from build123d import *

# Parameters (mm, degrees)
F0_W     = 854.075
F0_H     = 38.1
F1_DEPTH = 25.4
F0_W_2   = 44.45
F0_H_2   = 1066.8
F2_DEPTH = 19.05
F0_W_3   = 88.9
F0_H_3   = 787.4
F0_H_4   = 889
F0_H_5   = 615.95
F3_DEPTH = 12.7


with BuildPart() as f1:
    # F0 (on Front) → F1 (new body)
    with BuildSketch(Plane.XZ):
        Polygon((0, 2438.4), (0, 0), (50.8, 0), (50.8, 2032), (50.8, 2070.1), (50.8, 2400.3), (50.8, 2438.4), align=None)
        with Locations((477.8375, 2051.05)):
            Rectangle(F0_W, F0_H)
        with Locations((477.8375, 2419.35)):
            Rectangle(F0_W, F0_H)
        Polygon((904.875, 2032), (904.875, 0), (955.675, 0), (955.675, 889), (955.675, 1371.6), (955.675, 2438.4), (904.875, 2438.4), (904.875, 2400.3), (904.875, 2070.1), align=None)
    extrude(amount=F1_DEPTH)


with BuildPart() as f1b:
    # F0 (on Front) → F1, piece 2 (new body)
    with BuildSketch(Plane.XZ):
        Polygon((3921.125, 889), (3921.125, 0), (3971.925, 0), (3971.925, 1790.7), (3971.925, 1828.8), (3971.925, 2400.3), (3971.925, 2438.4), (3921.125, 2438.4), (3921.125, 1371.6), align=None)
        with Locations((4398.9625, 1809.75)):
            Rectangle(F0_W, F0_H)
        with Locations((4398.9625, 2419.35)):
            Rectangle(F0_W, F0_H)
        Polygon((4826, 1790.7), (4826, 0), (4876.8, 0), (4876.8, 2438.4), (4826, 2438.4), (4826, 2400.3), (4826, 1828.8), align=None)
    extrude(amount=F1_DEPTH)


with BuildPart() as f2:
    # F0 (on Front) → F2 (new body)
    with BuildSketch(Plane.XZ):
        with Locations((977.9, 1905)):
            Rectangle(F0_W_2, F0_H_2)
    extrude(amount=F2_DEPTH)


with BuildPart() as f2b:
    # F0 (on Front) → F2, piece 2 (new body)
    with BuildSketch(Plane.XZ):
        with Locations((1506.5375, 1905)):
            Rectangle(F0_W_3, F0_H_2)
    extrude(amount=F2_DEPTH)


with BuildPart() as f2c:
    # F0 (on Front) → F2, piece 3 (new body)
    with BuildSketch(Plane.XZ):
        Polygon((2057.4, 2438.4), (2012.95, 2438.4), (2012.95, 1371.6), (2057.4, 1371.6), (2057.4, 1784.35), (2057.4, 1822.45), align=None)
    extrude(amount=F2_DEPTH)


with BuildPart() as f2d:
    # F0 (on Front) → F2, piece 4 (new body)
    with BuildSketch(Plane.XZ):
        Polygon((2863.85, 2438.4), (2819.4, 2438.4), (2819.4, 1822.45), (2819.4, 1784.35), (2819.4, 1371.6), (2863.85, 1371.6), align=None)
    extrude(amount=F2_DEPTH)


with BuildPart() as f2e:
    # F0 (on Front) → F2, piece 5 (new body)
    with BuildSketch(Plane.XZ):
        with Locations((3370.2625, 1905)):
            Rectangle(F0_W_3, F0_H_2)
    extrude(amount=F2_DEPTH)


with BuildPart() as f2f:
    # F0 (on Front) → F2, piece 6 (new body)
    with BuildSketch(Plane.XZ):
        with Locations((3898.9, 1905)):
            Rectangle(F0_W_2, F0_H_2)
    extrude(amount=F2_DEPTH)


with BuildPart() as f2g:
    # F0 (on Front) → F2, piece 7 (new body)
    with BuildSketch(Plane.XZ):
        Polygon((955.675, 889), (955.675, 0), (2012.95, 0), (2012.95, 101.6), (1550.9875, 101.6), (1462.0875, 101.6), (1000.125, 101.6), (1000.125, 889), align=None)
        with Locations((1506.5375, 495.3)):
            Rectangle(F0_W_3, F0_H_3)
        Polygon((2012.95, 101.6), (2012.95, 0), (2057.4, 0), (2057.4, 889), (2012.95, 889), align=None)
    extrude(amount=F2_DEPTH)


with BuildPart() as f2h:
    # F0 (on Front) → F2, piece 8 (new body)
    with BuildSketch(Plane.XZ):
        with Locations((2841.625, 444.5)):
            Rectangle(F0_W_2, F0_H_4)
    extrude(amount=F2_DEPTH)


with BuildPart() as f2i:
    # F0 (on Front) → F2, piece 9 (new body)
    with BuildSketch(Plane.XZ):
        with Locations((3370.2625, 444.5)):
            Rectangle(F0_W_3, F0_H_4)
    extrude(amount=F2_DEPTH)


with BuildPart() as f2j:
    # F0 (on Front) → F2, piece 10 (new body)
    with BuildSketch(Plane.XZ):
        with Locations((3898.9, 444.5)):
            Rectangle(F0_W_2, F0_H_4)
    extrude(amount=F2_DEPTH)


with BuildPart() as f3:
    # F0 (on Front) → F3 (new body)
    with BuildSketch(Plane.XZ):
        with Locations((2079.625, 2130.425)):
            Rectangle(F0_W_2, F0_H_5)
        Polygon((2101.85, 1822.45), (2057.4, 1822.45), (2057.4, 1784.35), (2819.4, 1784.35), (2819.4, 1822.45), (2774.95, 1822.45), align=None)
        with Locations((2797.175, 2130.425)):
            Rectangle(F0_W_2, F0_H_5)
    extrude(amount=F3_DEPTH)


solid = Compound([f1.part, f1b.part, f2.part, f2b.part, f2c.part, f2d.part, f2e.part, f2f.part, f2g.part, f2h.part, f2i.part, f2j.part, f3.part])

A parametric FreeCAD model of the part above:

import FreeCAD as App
import Part
import Sketcher
from FreeCAD import Vector
Q = App.Units.Quantity


def add_polygon(sketch, points):
    """Adds a closed chain of lines whose ends are joined by coincident constraints."""
    first, n = sketch.GeometryCount, len(points)
    for a, b in zip(points, points[1:] + points[:1]):
        sketch.addGeometry(Part.LineSegment(App.Vector(*a, 0), App.Vector(*b, 0)), False)
    for i in range(n):
        sketch.addConstraint(Sketcher.Constraint("Coincident", first + i, 2, first + (i + 1) % n, 1))

doc = App.newDocument("Part")
params = doc.addObject("Spreadsheet::Sheet", "Params")
for row, (alias, value) in enumerate([
    ("sketch1_width", "2 in"),
    ("sketch1_height", "96 in"),
    ("sketch1_height2", "80 in"),
    ("sketch1_height3", "13 in"),
    ("sketch1_width2", "33.625 in"),
    ("pad1_length", "1 in"),
    ("sketch2_width", "2 in"),
    ("sketch2_height", "96 in"),
    ("sketch2_height2", "70.5 in"),
    ("sketch2_height3", "22.5 in"),
    ("sketch2_width2", "33.625 in"),
    ("pad2_length", "1 in"),
    ("sketch3_height", "42 in"),
    ("sketch3_width", "1.75 in"),
    ("pad3_length", "0.75 in"),
    ("sketch4_height", "42 in"),
    ("sketch4_width", "3.5 in"),
    ("pad4_length", "0.75 in"),
    ("sketch5_height", "42 in"),
    ("sketch5_width", "1.75 in"),
    ("pad5_length", "0.75 in"),
    ("sketch6_height", "42 in"),
    ("sketch6_width", "1.75 in"),
    ("pad6_length", "0.75 in"),
    ("sketch7_height", "42 in"),
    ("sketch7_width", "3.5 in"),
    ("pad7_length", "0.75 in"),
    ("sketch8_height", "42 in"),
    ("sketch8_width", "1.75 in"),
    ("pad8_length", "0.75 in"),
    ("sketch9_height", "35 in"),
    ("sketch9_height2", "31 in"),
    ("sketch9_width", "3.5 in"),
    ("sketch9_width2", "1.75 in"),
    ("sketch9_width3", "43.375 in"),
    ("pad9_length", "0.75 in"),
    ("sketch10_height", "35 in"),
    ("sketch10_width", "1.75 in"),
    ("pad10_length", "0.75 in"),
    ("sketch11_height", "35 in"),
    ("sketch11_width", "3.5 in"),
    ("pad11_length", "0.75 in"),
    ("sketch12_height", "35 in"),
    ("sketch12_width", "1.75 in"),
    ("pad12_length", "0.75 in"),
    ("sketch13_width", "30 in"),
    ("sketch13_width2", "26.5 in"),
    ("sketch13_height", "25.75 in"),
    ("sketch13_height2", "24.25 in"),
    ("pad13_length", "0.5 in"),
], start=1):
    params.set(f"A{row}", alias)
    params.set(f"B{row}", "=" + value)
    params.setAlias(f"B{row}", alias)

body = doc.addObject("PartDesign::Body", "Body")

# Sketch on XZ plane
sketch1 = doc.addObject("Sketcher::SketchObject", "Sketch")
body.addObject(sketch1)
sketch1.AttachmentSupport = (doc.XZ_Plane, [""])
sketch1.MapMode = "FlatFace"
add_polygon(sketch1, [(0, 2438), (0, 0), (51, 0), (51, 2032), (905, 2032), (905, 0), (956, 0), (956, 2438)])  # lines 0-7
add_polygon(sketch1, [(905, 2070), (51, 2070), (51, 2400), (905, 2400)])  # lines 8-11
sketch1.addConstraint([
    Sketcher.Constraint("Vertical", 0),
    Sketcher.Constraint("Horizontal", 1),
    Sketcher.Constraint("Vertical", 2),
    Sketcher.Constraint("Horizontal", 3),
    Sketcher.Constraint("Vertical", 4),
    Sketcher.Constraint("Horizontal", 5),
    Sketcher.Constraint("Vertical", 6),
    Sketcher.Constraint("Horizontal", 7),
    Sketcher.Constraint("Horizontal", 8),
    Sketcher.Constraint("Vertical", 9),
    Sketcher.Constraint("Horizontal", 10),
    Sketcher.Constraint("Vertical", 11),
    Sketcher.Constraint("Coincident", 0, 2, -1, 1),
    Sketcher.Constraint("PointOnObject", 4, 2, -1),
    Sketcher.Constraint("Vertical", 2, 2, 8, 2),
    Sketcher.Constraint("Vertical", 4, 2, 10, 2),
    Sketcher.Constraint("Equal", 1, 5),
    Sketcher.Constraint("DistanceX", 1, 1, 1, 2, Q("2 in")),
    Sketcher.Constraint("DistanceY", 0, 2, 0, 1, Q("96 in")),
    Sketcher.Constraint("DistanceY", 2, 1, 2, 2, Q("80 in")),
    Sketcher.Constraint("DistanceY", 9, 1, 9, 2, Q("13 in")),
    Sketcher.Constraint("DistanceY", -1, 1, 8, 2, Q("81.5 in")),
    Sketcher.Constraint("DistanceX", 3, 1, 3, 2, Q("33.625 in")),
])
sketch1.setExpression("Constraints[29]", "Params.sketch1_width")
sketch1.setExpression("Constraints[30]", "Params.sketch1_height")
sketch1.setExpression("Constraints[31]", "Params.sketch1_height2")
sketch1.setExpression("Constraints[32]", "Params.sketch1_height3")
sketch1.setExpression("Constraints[34]", "Params.sketch1_width2")
pad1 = doc.addObject("PartDesign::Pad", "Pad")
body.addObject(pad1)
pad1.Profile = sketch1
pad1.setExpression("Length", "Params.pad1_length")
body2 = doc.addObject("PartDesign::Body", "Body001")

# Sketch on XZ plane
sketch2 = doc.addObject("Sketcher::SketchObject", "Sketch001")
body2.addObject(sketch2)
sketch2.AttachmentSupport = (doc.getObject("XZ_Plane001"), [""])
sketch2.MapMode = "FlatFace"
add_polygon(sketch2, [(3921, 0), (3972, 0), (3972, 1791), (4826, 1791), (4826, 0), (4877, 0), (4877, 2438), (3921, 2438)])  # lines 0-7
add_polygon(sketch2, [(4826, 1829), (3972, 1829), (3972, 2400), (4826, 2400)])  # lines 8-11
sketch2.addConstraint([
    Sketcher.Constraint("Horizontal", 0),
    Sketcher.Constraint("Vertical", 1),
    Sketcher.Constraint("Horizontal", 2),
    Sketcher.Constraint("Vertical", 3),
    Sketcher.Constraint("Horizontal", 4),
    Sketcher.Constraint("Vertical", 5),
    Sketcher.Constraint("Horizontal", 6),
    Sketcher.Constraint("Vertical", 7),
    Sketcher.Constraint("Horizontal", 8),
    Sketcher.Constraint("Vertical", 9),
    Sketcher.Constraint("Horizontal", 10),
    Sketcher.Constraint("Vertical", 11),
    Sketcher.Constraint("PointOnObject", 0, 2, -1),
    Sketcher.Constraint("PointOnObject", 3, 2, -1),
    Sketcher.Constraint("Vertical", 1, 2, 8, 2),
    Sketcher.Constraint("Vertical", 3, 2, 10, 2),
    Sketcher.Constraint("Equal", 0, 4),
    Sketcher.Constraint("DistanceX", 0, 1, 0, 2, Q("2 in")),
    Sketcher.Constraint("DistanceY", 5, 1, 5, 2, Q("96 in")),
    Sketcher.Constraint("DistanceY", 1, 1, 1, 2, Q("70.5 in")),
    Sketcher.Constraint("DistanceY", 9, 1, 9, 2, Q("22.5 in")),
    Sketcher.Constraint("DistanceX", -1, 1, 2, 2, Q("190 in")),
    Sketcher.Constraint("DistanceY", -1, 1, 8, 2, Q("72 in")),
    Sketcher.Constraint("DistanceX", 2, 1, 2, 2, Q("33.625 in")),
])
sketch2.setExpression("Constraints[29]", "Params.sketch2_width")
sketch2.setExpression("Constraints[30]", "Params.sketch2_height")
sketch2.setExpression("Constraints[31]", "Params.sketch2_height2")
sketch2.setExpression("Constraints[32]", "Params.sketch2_height3")
sketch2.setExpression("Constraints[35]", "Params.sketch2_width2")
pad2 = doc.addObject("PartDesign::Pad", "Pad001")
body2.addObject(pad2)
pad2.Profile = sketch2
pad2.setExpression("Length", "Params.pad2_length")
body3 = doc.addObject("PartDesign::Body", "Body002")

# Sketch on XZ plane
sketch3 = doc.addObject("Sketcher::SketchObject", "Sketch002")
body3.addObject(sketch3)
sketch3.AttachmentSupport = (doc.getObject("XZ_Plane002"), [""])
sketch3.MapMode = "FlatFace"
add_polygon(sketch3, [(956, 2438), (956, 1372), (1000, 1372), (1000, 2438)])  # lines 0-3
sketch3.addConstraint([
    Sketcher.Constraint("Vertical", 0),
    Sketcher.Constraint("Horizontal", 1),
    Sketcher.Constraint("Vertical", 2),
    Sketcher.Constraint("Horizontal", 3),
    Sketcher.Constraint("DistanceY", 0, 2, 0, 1, Q("42 in")),
    Sketcher.Constraint("DistanceY", -1, 1, 0, 2, Q("54 in")),
    Sketcher.Constraint("DistanceX", 1, 1, 1, 2, Q("1.75 in")),
    Sketcher.Constraint("DistanceX", -1, 1, 0, 2, Q("37.625 in")),
])
sketch3.setExpression("Constraints[8]", "Params.sketch3_height")
sketch3.setExpression("Constraints[10]", "Params.sketch3_width")
pad3 = doc.addObject("PartDesign::Pad", "Pad002")
body3.addObject(pad3)
pad3.Profile = sketch3
pad3.setExpression("Length", "Params.pad3_length")
body4 = doc.addObject("PartDesign::Body", "Body003")

# Sketch on XZ plane
sketch4 = doc.addObject("Sketcher::SketchObject", "Sketch003")
body4.addObject(sketch4)
sketch4.AttachmentSupport = (doc.getObject("XZ_Plane003"), [""])
sketch4.MapMode = "FlatFace"
add_polygon(sketch4, [(1462, 2438), (1462, 1372), (1551, 1372), (1551, 2438)])  # lines 0-3
sketch4.addConstraint([
    Sketcher.Constraint("Vertical", 0),
    Sketcher.Constraint("Horizontal", 1),
    Sketcher.Constraint("Vertical", 2),
    Sketcher.Constraint("Horizontal", 3),
    Sketcher.Constraint("DistanceY", 0, 2, 0, 1, Q("42 in")),
    Sketcher.Constraint("DistanceX", 1, 1, 1, 2, Q("3.5 in")),
    Sketcher.Constraint("DistanceY", -1, 1, 0, 2, Q("54 in")),
    Sketcher.Constraint("DistanceX", -1, 1, 0, 2, Q("57.5625 in")),
])
sketch4.setExpression("Constraints[8]", "Params.sketch4_height")
sketch4.setExpression("Constraints[9]", "Params.sketch4_width")
pad4 = doc.addObject("PartDesign::Pad", "Pad003")
body4.addObject(pad4)
pad4.Profile = sketch4
pad4.setExpression("Length", "Params.pad4_length")
body5 = doc.addObject("PartDesign::Body", "Body004")

# Sketch on XZ plane
sketch5 = doc.addObject("Sketcher::SketchObject", "Sketch004")
body5.addObject(sketch5)
sketch5.AttachmentSupport = (doc.getObject("XZ_Plane004"), [""])
sketch5.MapMode = "FlatFace"
add_polygon(sketch5, [(2057, 2438), (2013, 2438), (2013, 1372), (2057, 1372)])  # lines 0-3
sketch5.addConstraint([
    Sketcher.Constraint("Horizontal", 0),
    Sketcher.Constraint("Vertical", 1),
    Sketcher.Constraint("Horizontal", 2),
    Sketcher.Constraint("Vertical", 3),
    Sketcher.Constraint("DistanceY", 1, 2, 1, 1, Q("42 in")),
    Sketcher.Constraint("DistanceY", -1, 1, 0, 2, Q("96 in")),
    Sketcher.Constraint("DistanceX", -1, 1, 2, 2, Q("81 in")),
    Sketcher.Constraint("DistanceX", 0, 2, 0, 1, Q("1.75 in")),
])
sketch5.setExpression("Constraints[8]", "Params.sketch5_height")
sketch5.setExpression("Constraints[11]", "Params.sketch5_width")
pad5 = doc.addObject("PartDesign::Pad", "Pad004")
body5.addObject(pad5)
pad5.Profile = sketch5
pad5.setExpression("Length", "Params.pad5_length")
body6 = doc.addObject("PartDesign::Body", "Body005")

# Sketch on XZ plane
sketch6 = doc.addObject("Sketcher::SketchObject", "Sketch005")
body6.addObject(sketch6)
sketch6.AttachmentSupport = (doc.getObject("XZ_Plane005"), [""])
sketch6.MapMode = "FlatFace"
add_polygon(sketch6, [(2864, 2438), (2819, 2438), (2819, 1372), (2864, 1372)])  # lines 0-3
sketch6.addConstraint([
    Sketcher.Constraint("Horizontal", 0),
    Sketcher.Constraint("Vertical", 1),
    Sketcher.Constraint("Horizontal", 2),
    Sketcher.Constraint("Vertical", 3),
    Sketcher.Constraint("DistanceY", 1, 2, 1, 1, Q("42 in")),
    Sketcher.Constraint("DistanceX", -1, 1, 0, 2, Q("111 in")),
    Sketcher.Constraint("DistanceY", -1, 1, 0, 2, Q("96 in")),
    Sketcher.Constraint("DistanceX", 0, 2, 0, 1, Q("1.75 in")),
])
sketch6.setExpression("Constraints[8]", "Params.sketch6_height")
sketch6.setExpression("Constraints[11]", "Params.sketch6_width")
pad6 = doc.addObject("PartDesign::Pad", "Pad005")
body6.addObject(pad6)
pad6.Profile = sketch6
pad6.setExpression("Length", "Params.pad6_length")
body7 = doc.addObject("PartDesign::Body", "Body006")

# Sketch on XZ plane
sketch7 = doc.addObject("Sketcher::SketchObject", "Sketch006")
body7.addObject(sketch7)
sketch7.AttachmentSupport = (doc.getObject("XZ_Plane006"), [""])
sketch7.MapMode = "FlatFace"
add_polygon(sketch7, [(3326, 2438), (3326, 1372), (3415, 1372), (3415, 2438)])  # lines 0-3
sketch7.addConstraint([
    Sketcher.Constraint("Vertical", 0),
    Sketcher.Constraint("Horizontal", 1),
    Sketcher.Constraint("Vertical", 2),
    Sketcher.Constraint("Horizontal", 3),
    Sketcher.Constraint("DistanceY", 0, 2, 0, 1, Q("42 in")),
    Sketcher.Constraint("DistanceX", 1, 1, 1, 2, Q("3.5 in")),
    Sketcher.Constraint("DistanceY", -1, 1, 0, 2, Q("54 in")),
    Sketcher.Constraint("DistanceX", -1, 1, 0, 2, Q("130.9375 in")),
])
sketch7.setExpression("Constraints[8]", "Params.sketch7_height")
sketch7.setExpression("Constraints[9]", "Params.sketch7_width")
pad7 = doc.addObject("PartDesign::Pad", "Pad006")
body7.addObject(pad7)
pad7.Profile = sketch7
pad7.setExpression("Length", "Params.pad7_length")
body8 = doc.addObject("PartDesign::Body", "Body007")

# Sketch on XZ plane
sketch8 = doc.addObject("Sketcher::SketchObject", "Sketch007")
body8.addObject(sketch8)
sketch8.AttachmentSupport = (doc.getObject("XZ_Plane007"), [""])
sketch8.MapMode = "FlatFace"
add_polygon(sketch8, [(3877, 2438), (3877, 1372), (3921, 1372), (3921, 2438)])  # lines 0-3
sketch8.addConstraint([
    Sketcher.Constraint("Vertical", 0),
    Sketcher.Constraint("Horizontal", 1),
    Sketcher.Constraint("Vertical", 2),
    Sketcher.Constraint("Horizontal", 3),
    Sketcher.Constraint("DistanceY", 0, 2, 0, 1, Q("42 in")),
    Sketcher.Constraint("DistanceY", -1, 1, 0, 2, Q("54 in")),
    Sketcher.Constraint("DistanceX", 1, 1, 1, 2, Q("1.75 in")),
    Sketcher.Constraint("DistanceX", -1, 1, 0, 2, Q("152.625 in")),
])
sketch8.setExpression("Constraints[8]", "Params.sketch8_height")
sketch8.setExpression("Constraints[10]", "Params.sketch8_width")
pad8 = doc.addObject("PartDesign::Pad", "Pad007")
body8.addObject(pad8)
pad8.Profile = sketch8
pad8.setExpression("Length", "Params.pad8_length")
body9 = doc.addObject("PartDesign::Body", "Body008")

# Sketch on XZ plane
sketch9 = doc.addObject("Sketcher::SketchObject", "Sketch008")
body9.addObject(sketch9)
sketch9.AttachmentSupport = (doc.getObject("XZ_Plane008"), [""])
sketch9.MapMode = "FlatFace"
add_polygon(sketch9, [(956, 889), (956, 0), (2057, 0), (2057, 889), (2013, 889), (2013, 102), (1551, 102), (1551, 889), (1462, 889), (1462, 102), (1000, 102), (1000, 889)])  # lines 0-11
sketch9.addConstraint([
    Sketcher.Constraint("Vertical", 0),
    Sketcher.Constraint("Horizontal", 1),
    Sketcher.Constraint("Vertical", 2),
    Sketcher.Constraint("Horizontal", 3),
    Sketcher.Constraint("Vertical", 4),
    Sketcher.Constraint("Horizontal", 5),
    Sketcher.Constraint("Vertical", 6),
    Sketcher.Constraint("Horizontal", 7),
    Sketcher.Constraint("Vertical", 8),
    Sketcher.Constraint("Horizontal", 9),
    Sketcher.Constraint("Vertical", 10),
    Sketcher.Constraint("Horizontal", 11),
    Sketcher.Constraint("PointOnObject", 0, 2, -1),
    Sketcher.Constraint("Horizontal", 3, 2, 6, 2),
    Sketcher.Constraint("Horizontal", 5, 2, 8, 2),
    Sketcher.Constraint("Horizontal", 7, 2, 10, 2),
    Sketcher.Constraint("Equal", 5, 9),
    Sketcher.Constraint("Equal", 3, 11),
    Sketcher.Constraint("DistanceY", 0, 2, 0, 1, Q("35 in")),
    Sketcher.Constraint("DistanceY", 4, 2, 4, 1, Q("31 in")),
    Sketcher.Constraint("DistanceX", 7, 2, 7, 1, Q("3.5 in")),
    Sketcher.Constraint("DistanceX", -1, 1, 1, 2, Q("81 in")),
    Sketcher.Constraint("DistanceX", 3, 2, 3, 1, Q("1.75 in")),
    Sketcher.Constraint("DistanceX", 1, 1, 1, 2, Q("43.375 in")),
])
sketch9.setExpression("Constraints[30]", "Params.sketch9_height")
sketch9.setExpression("Constraints[31]", "Params.sketch9_height2")
sketch9.setExpression("Constraints[32]", "Params.sketch9_width")
sketch9.setExpression("Constraints[34]", "Params.sketch9_width2")
sketch9.setExpression("Constraints[35]", "Params.sketch9_width3")
pad9 = doc.addObject("PartDesign::Pad", "Pad008")
body9.addObject(pad9)
pad9.Profile = sketch9
pad9.setExpression("Length", "Params.pad9_length")
body10 = doc.addObject("PartDesign::Body", "Body009")

# Sketch on XZ plane
sketch10 = doc.addObject("Sketcher::SketchObject", "Sketch009")
body10.addObject(sketch10)
sketch10.AttachmentSupport = (doc.getObject("XZ_Plane009"), [""])
sketch10.MapMode = "FlatFace"
add_polygon(sketch10, [(2819, 889), (2819, 0), (2864, 0), (2864, 889)])  # lines 0-3
sketch10.addConstraint([
    Sketcher.Constraint("Vertical", 0),
    Sketcher.Constraint("Horizontal", 1),
    Sketcher.Constraint("Vertical", 2),
    Sketcher.Constraint("Horizontal", 3),
    Sketcher.Constraint("PointOnObject", 0, 2, -1),
    Sketcher.Constraint("DistanceY", 0, 2, 0, 1, Q("35 in")),
    Sketcher.Constraint("DistanceX", -1, 1, 0, 2, Q("111 in")),
    Sketcher.Constraint("DistanceX", 1, 1, 1, 2, Q("1.75 in")),
])
sketch10.setExpression("Constraints[9]", "Params.sketch10_height")
sketch10.setExpression("Constraints[11]", "Params.sketch10_width")
pad10 = doc.addObject("PartDesign::Pad", "Pad009")
body10.addObject(pad10)
pad10.Profile = sketch10
pad10.setExpression("Length", "Params.pad10_length")
body11 = doc.addObject("PartDesign::Body", "Body010")

# Sketch on XZ plane
sketch11 = doc.addObject("Sketcher::SketchObject", "Sketch010")
body11.addObject(sketch11)
sketch11.AttachmentSupport = (doc.getObject("XZ_Plane010"), [""])
sketch11.MapMode = "FlatFace"
add_polygon(sketch11, [(3326, 889), (3326, 0), (3415, 0), (3415, 889)])  # lines 0-3
sketch11.addConstraint([
    Sketcher.Constraint("Vertical", 0),
    Sketcher.Constraint("Horizontal", 1),
    Sketcher.Constraint("Vertical", 2),
    Sketcher.Constraint("Horizontal", 3),
    Sketcher.Constraint("PointOnObject", 0, 2, -1),
    Sketcher.Constraint("DistanceY", 0, 2, 0, 1, Q("35 in")),
    Sketcher.Constraint("DistanceX", 1, 1, 1, 2, Q("3.5 in")),
    Sketcher.Constraint("DistanceX", -1, 1, 0, 2, Q("130.9375 in")),
])
sketch11.setExpression("Constraints[9]", "Params.sketch11_height")
sketch11.setExpression("Constraints[10]", "Params.sketch11_width")
pad11 = doc.addObject("PartDesign::Pad", "Pad010")
body11.addObject(pad11)
pad11.Profile = sketch11
pad11.setExpression("Length", "Params.pad11_length")
body12 = doc.addObject("PartDesign::Body", "Body011")

# Sketch on XZ plane
sketch12 = doc.addObject("Sketcher::SketchObject", "Sketch011")
body12.addObject(sketch12)
sketch12.AttachmentSupport = (doc.getObject("XZ_Plane011"), [""])
sketch12.MapMode = "FlatFace"
add_polygon(sketch12, [(3877, 889), (3877, 0), (3921, 0), (3921, 889)])  # lines 0-3
sketch12.addConstraint([
    Sketcher.Constraint("Vertical", 0),
    Sketcher.Constraint("Horizontal", 1),
    Sketcher.Constraint("Vertical", 2),
    Sketcher.Constraint("Horizontal", 3),
    Sketcher.Constraint("PointOnObject", 0, 2, -1),
    Sketcher.Constraint("DistanceY", 0, 2, 0, 1, Q("35 in")),
    Sketcher.Constraint("DistanceX", 1, 1, 1, 2, Q("1.75 in")),
    Sketcher.Constraint("DistanceX", -1, 1, 0, 2, Q("152.625 in")),
])
sketch12.setExpression("Constraints[9]", "Params.sketch12_height")
sketch12.setExpression("Constraints[10]", "Params.sketch12_width")
pad12 = doc.addObject("PartDesign::Pad", "Pad011")
body12.addObject(pad12)
pad12.Profile = sketch12
pad12.setExpression("Length", "Params.pad12_length")
body13 = doc.addObject("PartDesign::Body", "Body012")

# Sketch on XZ plane
sketch13 = doc.addObject("Sketcher::SketchObject", "Sketch012")
body13.addObject(sketch13)
sketch13.AttachmentSupport = (doc.getObject("XZ_Plane012"), [""])
sketch13.MapMode = "FlatFace"
add_polygon(sketch13, [(2057, 2438), (2057, 1784), (2819, 1784), (2819, 2438), (2775, 2438), (2775, 1822), (2102, 1822), (2102, 2438)])  # lines 0-7
sketch13.addConstraint([
    Sketcher.Constraint("Vertical", 0),
    Sketcher.Constraint("Horizontal", 1),
    Sketcher.Constraint("Vertical", 2),
    Sketcher.Constraint("Horizontal", 3),
    Sketcher.Constraint("Vertical", 4),
    Sketcher.Constraint("Horizontal", 5),
    Sketcher.Constraint("Vertical", 6),
    Sketcher.Constraint("Horizontal", 7),
    Sketcher.Constraint("Horizontal", 3, 2, 6, 2),
    Sketcher.Constraint("Equal", 3, 7),
    Sketcher.Constraint("DistanceX", 1, 1, 1, 2, Q("30 in")),
    Sketcher.Constraint("DistanceX", 5, 2, 5, 1, Q("26.5 in")),
    Sketcher.Constraint("DistanceX", -1, 1, 0, 2, Q("81 in")),
    Sketcher.Constraint("DistanceY", -1, 1, 2, 2, Q("96 in")),
    Sketcher.Constraint("DistanceY", 0, 2, 0, 1, Q("25.75 in")),
    Sketcher.Constraint("DistanceY", 4, 2, 4, 1, Q("24.25 in")),
])
sketch13.setExpression("Constraints[18]", "Params.sketch13_width")
sketch13.setExpression("Constraints[19]", "Params.sketch13_width2")
sketch13.setExpression("Constraints[22]", "Params.sketch13_height")
sketch13.setExpression("Constraints[23]", "Params.sketch13_height2")
pad13 = doc.addObject("PartDesign::Pad", "Pad012")
body13.addObject(pad13)
pad13.Profile = sketch13
pad13.setExpression("Length", "Params.pad13_length")

doc.recompute()
